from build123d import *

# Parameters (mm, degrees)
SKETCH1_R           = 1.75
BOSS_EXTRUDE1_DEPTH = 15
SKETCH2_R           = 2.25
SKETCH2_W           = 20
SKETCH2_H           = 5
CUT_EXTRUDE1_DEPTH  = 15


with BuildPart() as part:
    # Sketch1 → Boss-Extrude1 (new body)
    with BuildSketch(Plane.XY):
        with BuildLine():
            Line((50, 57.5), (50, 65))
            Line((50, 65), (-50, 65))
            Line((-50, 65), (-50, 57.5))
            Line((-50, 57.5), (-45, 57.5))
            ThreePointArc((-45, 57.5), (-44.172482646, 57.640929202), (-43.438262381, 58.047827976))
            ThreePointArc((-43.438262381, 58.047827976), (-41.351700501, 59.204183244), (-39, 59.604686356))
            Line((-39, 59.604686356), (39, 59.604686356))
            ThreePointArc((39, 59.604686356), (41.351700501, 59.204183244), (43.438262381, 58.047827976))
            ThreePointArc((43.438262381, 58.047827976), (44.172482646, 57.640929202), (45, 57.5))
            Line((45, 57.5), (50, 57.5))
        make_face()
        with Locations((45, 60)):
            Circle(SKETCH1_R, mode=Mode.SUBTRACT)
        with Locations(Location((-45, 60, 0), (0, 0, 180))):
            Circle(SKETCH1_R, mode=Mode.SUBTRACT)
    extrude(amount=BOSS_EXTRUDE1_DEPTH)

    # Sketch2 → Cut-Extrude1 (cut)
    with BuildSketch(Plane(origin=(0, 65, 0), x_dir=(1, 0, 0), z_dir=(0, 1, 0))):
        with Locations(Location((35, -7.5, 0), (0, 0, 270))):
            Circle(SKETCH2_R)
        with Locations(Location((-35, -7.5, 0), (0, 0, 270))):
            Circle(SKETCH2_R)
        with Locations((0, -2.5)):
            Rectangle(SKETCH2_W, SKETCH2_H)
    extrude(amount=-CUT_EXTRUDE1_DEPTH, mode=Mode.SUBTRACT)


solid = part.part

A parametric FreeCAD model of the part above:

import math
import FreeCAD as App
import Part
import Sketcher
from FreeCAD import Vector


def add_polygon(sketch, points):
    """Adds a closed chain of lines whose ends are joined by coincident constraints."""
    first, n = sketch.GeometryCount, len(points)
    for a, b in zip(points, points[1:] + points[:1]):
        sketch.addGeometry(Part.LineSegment(App.Vector(*a, 0), App.Vector(*b, 0)), False)
    for i in range(n):
        sketch.addConstraint(Sketcher.Constraint("Coincident", first + i, 2, first + (i + 1) % n, 1))

doc = App.newDocument("Part")
params = doc.addObject("Spreadsheet::Sheet", "Params")
for row, (alias, value) in enumerate([
    ("sketch1_diameter", "3.5 mm"),
    ("sketch1_radius", "2.5 mm"),
    ("sketch1_width", "100 mm"),
    ("sketch1_width2", "5 mm"),
    ("sketch1_width3", "78 mm"),
    ("pad1_length", "15 mm"),
    ("sketch2_diameter", "4.5 mm"),
    ("sketch2_width", "20 mm"),
    ("sketch2_height", "5 mm"),
    ("pocket1_length", "15 mm"),
], start=1):
    params.set(f"A{row}", alias)
    params.set(f"B{row}", "=" + value)
    params.setAlias(f"B{row}", alias)

body = doc.addObject("PartDesign::Body", "Body")

sketch1 = doc.addObject("Sketcher::SketchObject", "Sketch")
body.addObject(sketch1)
sketch1.AttachmentSupport = (doc.XY_Plane, [""])
sketch1.MapMode = "FlatFace"
sketch1.addGeometry(Part.LineSegment(Vector(50, 57.5, 0), Vector(50, 65, 0)), False)
sketch1.addGeometry(Part.LineSegment(Vector(50, 65, 0), Vector(-50, 65, 0)), False)
sketch1.addGeometry(Part.LineSegment(Vector(-50, 65, 0), Vector(-50, 57.5, 0)), False)
sketch1.addGeometry(Part.LineSegment(Vector(-50, 57.5, 0), Vector(-45, 57.5, 0)), False)
sketch1.addGeometry(Part.ArcOfCircle(Part.Circle(Vector(-45, 60, 0), Vector(0, 0, 1), 2.5), math.radians(-90), math.radians(-51)), False)
sketch1.addGeometry(Part.ArcOfCircle(Part.Circle(Vector(-39, 52.5, 0), Vector(0, 0, 1), 7.1), math.radians(90), math.radians(129)), False)
sketch1.addGeometry(Part.LineSegment(Vector(-39, 59.6, 0), Vector(39, 59.6, 0)), False)
sketch1.addGeometry(Part.ArcOfCircle(Part.Circle(Vector(39, 52.5, 0), Vector(0, 0, 1), 7.1), math.radians(51), math.radians(90)), False)
sketch1.addGeometry(Part.ArcOfCircle(Part.Circle(Vector(45, 60, 0), Vector(0, 0, 1), 2.5), math.radians(-129), math.radians(-90)), False)
sketch1.addGeometry(Part.LineSegment(Vector(45, 57.5, 0), Vector(50, 57.5, 0)), False)
sketch1.addGeometry(Part.Circle(Vector(-45, 60, 0), Vector(0, 0, 1), 1.8), False)
sketch1.addGeometry(Part.Circle(Vector(45, 60, 0), Vector(0, 0, 1), 1.8), False)
sketch1.addConstraint(Sketcher.Constraint("Coincident", 0, 2, 1, 1))
sketch1.addConstraint(Sketcher.Constraint("Coincident", 1, 2, 2, 1))
sketch1.addConstraint(Sketcher.Constraint("Coincident", 2, 2, 3, 1))
sketch1.addConstraint(Sketcher.Constraint("Tangent", 3, 2, 4, 1))
sketch1.addConstraint(Sketcher.Constraint("Tangent", 4, 2, 5, 2))
sketch1.addConstraint(Sketcher.Constraint("Tangent", 5, 1, 6, 1))
sketch1.addConstraint(Sketcher.Constraint("Tangent", 6, 2, 7, 2))
sketch1.addConstraint(Sketcher.Constraint("Tangent", 7, 1, 8, 1))
sketch1.addConstraint(Sketcher.Constraint("Tangent", 8, 2, 9, 1))
sketch1.addConstraint(Sketcher.Constraint("Coincident", 9, 2, 0, 1))
sketch1.addConstraint(Sketcher.Constraint("Vertical", 0))
sketch1.addConstraint(Sketcher.Constraint("Horizontal", 1))
sketch1.addConstraint(Sketcher.Constraint("Vertical", 2))
sketch1.addConstraint(Sketcher.Constraint("Horizontal", 3))
sketch1.addConstraint(Sketcher.Constraint("Horizontal", 6))
sketch1.addConstraint(Sketcher.Constraint("Horizontal", 9))
sketch1.addConstraint(Sketcher.Constraint("Coincident", 10, 3, 4, 3))
sketch1.addConstraint(Sketcher.Constraint("Coincident", 11, 3, 8, 3))
sketch1.addConstraint(Sketcher.Constraint("Equal", 5, 7))
sketch1.addConstraint(Sketcher.Constraint("Equal", 4, 8))
sketch1.addConstraint(Sketcher.Constraint("Equal", 10, 11))
sketch1.addConstraint(Sketcher.Constraint("Symmetric", 4, 3, 8, 3, -2))
sketch1.addConstraint(Sketcher.Constraint("Equal", 3, 9))
sketch1.addConstraint(Sketcher.Constraint("Diameter", 10, 3.5))
sketch1.addConstraint(Sketcher.Constraint("Radius", 4, 2.5))
sketch1.addConstraint(Sketcher.Constraint("DistanceX", 1, 2, 1, 1, 100.0))
sketch1.addConstraint(Sketcher.Constraint("DistanceX", 3, 1, 3, 2, 5.0))
sketch1.addConstraint(Sketcher.Constraint("DistanceX", 6, 1, 6, 2, 78.0))
sketch1.addConstraint(Sketcher.Constraint("DistanceY", 0, 1, 0, 2, 7.5))
sketch1.addConstraint(Sketcher.Constraint("DistanceY", -1, 1, 4, 3, 60.0))
sketch1.addConstraint(Sketcher.Constraint("DistanceY", 5, 3, 2, 2, 5.0))
sketch1.setExpression("Constraints[23]", "Params.sketch1_diameter")
sketch1.setExpression("Constraints[24]", "Params.sketch1_radius")
sketch1.setExpression("Constraints[25]", "Params.sketch1_width")
sketch1.setExpression("Constraints[26]", "Params.sketch1_width2")
sketch1.setExpression("Constraints[27]", "Params.sketch1_width3")
pad1 = doc.addObject("PartDesign::Pad", "Pad")
body.addObject(pad1)
pad1.Profile = sketch1
pad1.setExpression("Length", "Params.pad1_length")

sketch2 = doc.addObject("Sketcher::SketchObject", "Sketch001")
body.addObject(sketch2)
sketch2.AttachmentSupport = (doc.XZ_Plane, [""])
sketch2.MapMode = "FlatFace"
sketch2.AttachmentOffset = App.Placement(Vector(0, 0, -65), App.Rotation())
sketch2.addGeometry(Part.Circle(Vector(35, 7.5, 0), Vector(0, 0, 1), 2.2), False)
sketch2.addGeometry(Part.Circle(Vector(-35, 7.5, 0), Vector(0, 0, 1), 2.2), False)
add_polygon(sketch2, [(-10, 0), (-10, 5), (10, 5), (10, 0)])
sketch2.addConstraint(Sketcher.Constraint("Vertical", 2))
sketch2.addConstraint(Sketcher.Constraint("Horizontal", 3))
sketch2.addConstraint(Sketcher.Constraint("Vertical", 4))
sketch2.addConstraint(Sketcher.Constraint("Horizontal", 5))
sketch2.addConstraint(Sketcher.Constraint("Equal", 0, 1))
sketch2.addConstraint(Sketcher.Constraint("Symmetric", 4, 2, 5, 2, -1, 1))
sketch2.addConstraint(Sketcher.Constraint("Symmetric", 0, 3, 1, 3, -2))
sketch2.addConstraint(Sketcher.Constraint("Diameter", 0, 4.5))
sketch2.addConstraint(Sketcher.Constraint("DistanceX", 3, 1, 3, 2, 20.0))
sketch2.addConstraint(Sketcher.Constraint("DistanceY", 2, 1, 2, 2, 5.0))
sketch2.addConstraint(Sketcher.Constraint("DistanceX", -1, 1, 0, 3, 35.0))
sketch2.addConstraint(Sketcher.Constraint("DistanceY", -1, 1, 0, 3, 7.5))
sketch2.setExpression("Constraints[11]", "Params.sketch2_diameter")
sketch2.setExpression("Constraints[12]", "Params.sketch2_width")
sketch2.setExpression("Constraints[13]", "Params.sketch2_height")
pocket1 = doc.addObject("PartDesign::Pocket", "Pocket")
body.addObject(pocket1)
pocket1.Profile = sketch2
pocket1.setExpression("Length", "Params.pocket1_length")
pocket1.Reversed = True

doc.recompute()
